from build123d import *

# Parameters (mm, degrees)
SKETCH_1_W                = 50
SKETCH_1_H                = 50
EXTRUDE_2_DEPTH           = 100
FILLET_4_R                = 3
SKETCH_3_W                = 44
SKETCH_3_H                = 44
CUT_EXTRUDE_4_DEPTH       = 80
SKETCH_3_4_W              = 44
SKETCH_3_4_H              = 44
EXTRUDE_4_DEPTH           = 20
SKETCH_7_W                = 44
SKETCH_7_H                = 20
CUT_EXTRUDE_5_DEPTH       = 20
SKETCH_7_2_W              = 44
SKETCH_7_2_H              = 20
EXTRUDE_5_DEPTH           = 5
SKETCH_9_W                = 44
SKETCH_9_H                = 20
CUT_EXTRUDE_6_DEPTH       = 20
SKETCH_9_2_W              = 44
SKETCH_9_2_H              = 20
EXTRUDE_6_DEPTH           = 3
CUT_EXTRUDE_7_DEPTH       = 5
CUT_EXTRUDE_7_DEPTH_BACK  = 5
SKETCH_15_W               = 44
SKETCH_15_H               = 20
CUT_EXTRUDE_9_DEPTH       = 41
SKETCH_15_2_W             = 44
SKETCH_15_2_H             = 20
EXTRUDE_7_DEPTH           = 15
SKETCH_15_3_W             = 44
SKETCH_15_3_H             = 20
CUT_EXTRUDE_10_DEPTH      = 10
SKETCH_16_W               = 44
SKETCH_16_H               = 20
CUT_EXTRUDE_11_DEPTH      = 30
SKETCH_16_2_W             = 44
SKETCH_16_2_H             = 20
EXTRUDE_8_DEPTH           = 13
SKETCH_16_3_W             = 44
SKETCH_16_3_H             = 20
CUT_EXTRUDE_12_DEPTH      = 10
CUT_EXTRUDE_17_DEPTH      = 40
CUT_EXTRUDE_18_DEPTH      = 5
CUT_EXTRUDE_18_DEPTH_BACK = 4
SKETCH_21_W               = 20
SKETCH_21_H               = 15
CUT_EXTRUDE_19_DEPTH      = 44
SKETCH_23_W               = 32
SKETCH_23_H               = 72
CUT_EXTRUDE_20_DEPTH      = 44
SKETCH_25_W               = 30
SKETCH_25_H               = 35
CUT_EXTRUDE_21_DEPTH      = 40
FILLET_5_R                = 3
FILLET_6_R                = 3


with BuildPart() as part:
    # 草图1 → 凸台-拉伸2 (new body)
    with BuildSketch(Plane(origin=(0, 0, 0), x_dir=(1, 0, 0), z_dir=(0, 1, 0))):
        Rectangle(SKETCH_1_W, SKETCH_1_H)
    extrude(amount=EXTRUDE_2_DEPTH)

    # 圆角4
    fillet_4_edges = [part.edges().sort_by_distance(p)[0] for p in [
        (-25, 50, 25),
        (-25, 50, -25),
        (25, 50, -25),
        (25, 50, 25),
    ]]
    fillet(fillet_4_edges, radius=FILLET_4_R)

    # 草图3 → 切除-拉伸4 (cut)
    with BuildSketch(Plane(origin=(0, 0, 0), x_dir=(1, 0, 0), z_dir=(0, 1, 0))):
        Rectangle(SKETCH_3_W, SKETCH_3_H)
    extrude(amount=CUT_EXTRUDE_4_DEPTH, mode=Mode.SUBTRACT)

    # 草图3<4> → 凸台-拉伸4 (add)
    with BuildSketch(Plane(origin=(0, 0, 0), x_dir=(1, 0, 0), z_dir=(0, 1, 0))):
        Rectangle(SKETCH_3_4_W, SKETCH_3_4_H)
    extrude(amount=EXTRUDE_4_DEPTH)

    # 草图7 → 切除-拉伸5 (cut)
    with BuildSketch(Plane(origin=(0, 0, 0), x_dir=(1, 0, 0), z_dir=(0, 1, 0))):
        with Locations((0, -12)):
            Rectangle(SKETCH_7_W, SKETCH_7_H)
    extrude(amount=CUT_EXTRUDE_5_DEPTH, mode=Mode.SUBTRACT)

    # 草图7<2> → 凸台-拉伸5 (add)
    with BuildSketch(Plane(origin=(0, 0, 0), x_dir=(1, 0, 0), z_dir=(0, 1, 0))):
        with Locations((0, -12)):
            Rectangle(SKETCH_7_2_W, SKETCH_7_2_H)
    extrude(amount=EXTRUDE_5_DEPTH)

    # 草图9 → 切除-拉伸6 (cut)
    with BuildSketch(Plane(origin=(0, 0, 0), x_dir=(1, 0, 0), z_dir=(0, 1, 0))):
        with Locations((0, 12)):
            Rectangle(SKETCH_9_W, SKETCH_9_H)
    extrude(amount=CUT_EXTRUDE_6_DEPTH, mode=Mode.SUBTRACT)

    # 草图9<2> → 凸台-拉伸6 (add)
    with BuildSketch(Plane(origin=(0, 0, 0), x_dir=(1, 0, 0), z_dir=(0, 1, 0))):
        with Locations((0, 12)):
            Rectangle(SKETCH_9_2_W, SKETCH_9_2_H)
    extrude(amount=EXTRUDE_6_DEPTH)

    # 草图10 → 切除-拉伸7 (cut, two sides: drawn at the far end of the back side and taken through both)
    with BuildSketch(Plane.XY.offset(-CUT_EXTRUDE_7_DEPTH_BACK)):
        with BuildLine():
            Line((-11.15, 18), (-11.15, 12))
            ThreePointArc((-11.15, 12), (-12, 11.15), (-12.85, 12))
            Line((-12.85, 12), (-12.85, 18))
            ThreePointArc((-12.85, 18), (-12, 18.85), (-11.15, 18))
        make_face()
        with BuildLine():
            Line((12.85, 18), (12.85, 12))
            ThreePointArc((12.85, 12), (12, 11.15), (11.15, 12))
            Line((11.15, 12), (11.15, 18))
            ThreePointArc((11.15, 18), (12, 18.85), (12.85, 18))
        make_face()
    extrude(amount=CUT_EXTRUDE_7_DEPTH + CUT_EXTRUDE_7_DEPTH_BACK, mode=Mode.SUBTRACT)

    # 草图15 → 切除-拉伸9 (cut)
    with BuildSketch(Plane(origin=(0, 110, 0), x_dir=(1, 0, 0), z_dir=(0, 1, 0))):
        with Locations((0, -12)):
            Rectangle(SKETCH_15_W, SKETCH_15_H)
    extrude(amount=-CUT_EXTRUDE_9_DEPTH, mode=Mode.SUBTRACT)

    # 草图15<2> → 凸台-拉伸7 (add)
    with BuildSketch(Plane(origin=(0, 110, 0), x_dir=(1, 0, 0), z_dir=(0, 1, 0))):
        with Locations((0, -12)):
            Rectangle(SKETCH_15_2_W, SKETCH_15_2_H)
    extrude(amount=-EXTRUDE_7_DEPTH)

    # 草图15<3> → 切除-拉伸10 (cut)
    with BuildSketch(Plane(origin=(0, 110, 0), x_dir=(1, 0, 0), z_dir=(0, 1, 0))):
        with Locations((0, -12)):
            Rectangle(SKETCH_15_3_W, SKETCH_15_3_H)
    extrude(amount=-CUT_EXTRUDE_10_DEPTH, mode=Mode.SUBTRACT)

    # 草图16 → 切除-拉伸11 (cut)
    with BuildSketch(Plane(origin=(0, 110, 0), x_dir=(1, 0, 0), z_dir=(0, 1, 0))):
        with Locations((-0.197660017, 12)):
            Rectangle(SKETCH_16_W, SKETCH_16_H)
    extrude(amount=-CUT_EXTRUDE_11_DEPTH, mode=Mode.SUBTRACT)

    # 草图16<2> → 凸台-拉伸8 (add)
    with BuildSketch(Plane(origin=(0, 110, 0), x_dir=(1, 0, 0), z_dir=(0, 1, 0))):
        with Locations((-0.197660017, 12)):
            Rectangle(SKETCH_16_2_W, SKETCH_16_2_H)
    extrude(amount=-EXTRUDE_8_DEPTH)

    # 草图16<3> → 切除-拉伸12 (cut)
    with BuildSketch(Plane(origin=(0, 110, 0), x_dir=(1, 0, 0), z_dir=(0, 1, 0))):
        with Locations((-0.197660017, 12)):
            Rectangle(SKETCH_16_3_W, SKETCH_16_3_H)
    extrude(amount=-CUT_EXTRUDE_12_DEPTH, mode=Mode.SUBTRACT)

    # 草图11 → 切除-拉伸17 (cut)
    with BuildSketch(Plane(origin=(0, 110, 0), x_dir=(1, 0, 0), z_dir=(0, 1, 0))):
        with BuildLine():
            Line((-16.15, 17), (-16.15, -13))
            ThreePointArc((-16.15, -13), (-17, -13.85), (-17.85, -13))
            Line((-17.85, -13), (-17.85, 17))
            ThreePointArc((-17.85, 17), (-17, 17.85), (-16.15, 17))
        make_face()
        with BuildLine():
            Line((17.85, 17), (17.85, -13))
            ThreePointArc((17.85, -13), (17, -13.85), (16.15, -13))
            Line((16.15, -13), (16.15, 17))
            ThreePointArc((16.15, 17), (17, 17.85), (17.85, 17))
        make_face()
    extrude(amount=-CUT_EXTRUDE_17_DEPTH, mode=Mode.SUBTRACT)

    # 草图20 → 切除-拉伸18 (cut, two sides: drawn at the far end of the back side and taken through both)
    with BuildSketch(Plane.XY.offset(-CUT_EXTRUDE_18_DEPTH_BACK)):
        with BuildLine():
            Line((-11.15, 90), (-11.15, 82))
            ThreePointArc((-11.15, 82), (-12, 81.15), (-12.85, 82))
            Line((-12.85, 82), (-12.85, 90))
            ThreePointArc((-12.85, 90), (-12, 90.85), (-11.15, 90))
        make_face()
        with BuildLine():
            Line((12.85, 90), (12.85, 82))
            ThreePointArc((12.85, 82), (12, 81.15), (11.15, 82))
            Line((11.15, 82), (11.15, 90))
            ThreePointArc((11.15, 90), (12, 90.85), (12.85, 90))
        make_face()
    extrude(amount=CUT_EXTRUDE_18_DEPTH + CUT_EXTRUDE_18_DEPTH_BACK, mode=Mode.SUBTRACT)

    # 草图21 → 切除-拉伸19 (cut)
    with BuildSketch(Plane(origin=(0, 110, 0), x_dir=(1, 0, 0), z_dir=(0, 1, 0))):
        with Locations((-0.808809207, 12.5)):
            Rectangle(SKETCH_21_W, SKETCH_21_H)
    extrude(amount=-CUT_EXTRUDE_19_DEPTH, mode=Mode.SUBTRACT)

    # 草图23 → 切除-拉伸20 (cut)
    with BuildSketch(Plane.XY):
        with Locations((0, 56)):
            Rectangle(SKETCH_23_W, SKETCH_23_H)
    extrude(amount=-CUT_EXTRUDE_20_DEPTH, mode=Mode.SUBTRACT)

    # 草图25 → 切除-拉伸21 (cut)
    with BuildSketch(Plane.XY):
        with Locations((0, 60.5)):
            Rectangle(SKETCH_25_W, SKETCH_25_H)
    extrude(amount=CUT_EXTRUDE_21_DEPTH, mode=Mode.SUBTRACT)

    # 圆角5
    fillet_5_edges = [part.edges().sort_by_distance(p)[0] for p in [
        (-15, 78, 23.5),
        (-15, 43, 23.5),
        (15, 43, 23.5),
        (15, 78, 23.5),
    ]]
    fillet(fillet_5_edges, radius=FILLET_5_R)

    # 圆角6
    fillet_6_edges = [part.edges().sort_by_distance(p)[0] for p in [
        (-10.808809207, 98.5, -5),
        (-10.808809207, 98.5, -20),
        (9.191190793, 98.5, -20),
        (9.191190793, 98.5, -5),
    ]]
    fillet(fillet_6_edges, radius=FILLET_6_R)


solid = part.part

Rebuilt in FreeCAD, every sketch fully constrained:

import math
import FreeCAD as App
import Part
import Sketcher
Q = App.Units.Quantity


def edges_at(feature, points):
    """Names of the edges that pass closest to the given points."""
    edges = feature.Shape.Edges
    near = lambda p: min(range(len(edges)), key=lambda i: edges[i].distToShape(Part.Vertex(*p))[0])
    return sorted({f"Edge{near(p) + 1}" for p in points})

doc = App.newDocument("Part")
body = doc.addObject("PartDesign::Body", "Body")

# Sketch on XZ plane
sketch1 = doc.addObject("Sketcher::SketchObject", "Sketch")
body.addObject(sketch1)
sketch1.AttachmentSupport = (doc.XZ_Plane, [""])
sketch1.MapMode = "FlatFace"
sketch1.addGeometry([
    Part.LineSegment(App.Vector(-25, -25, 0), App.Vector(-25, 25, 0)),
    Part.LineSegment(App.Vector(-25, 25, 0), App.Vector(25, 25, 0)),
    Part.LineSegment(App.Vector(25, 25, 0), App.Vector(25, -25, 0)),
    Part.LineSegment(App.Vector(25, -25, 0), App.Vector(-25, -25, 0)),
], False)
sketch1.addConstraint([
    Sketcher.Constraint("Coincident", 0, 2, 1, 1),
    Sketcher.Constraint("Coincident", 1, 2, 2, 1),
    Sketcher.Constraint("Coincident", 2, 2, 3, 1),
    Sketcher.Constraint("Coincident", 3, 2, 0, 1),
    Sketcher.Constraint("Vertical", 0),
    Sketcher.Constraint("Horizontal", 1),
    Sketcher.Constraint("Vertical", 2),
    Sketcher.Constraint("Horizontal", 3),
    Sketcher.Constraint("Symmetric", 0, 2, 2, 2, -1, 1),
    Sketcher.Constraint("Equal", 3, 0),
    Sketcher.Constraint("DistanceX", 1, 1, 1, 2, Q("50 mm")),
])
pad1 = doc.addObject("PartDesign::Pad", "Pad")
body.addObject(pad1)
pad1.Profile = sketch1
pad1.Length = 100
pad1.Reversed = True
doc.recompute()

fillet = doc.addObject("PartDesign::Fillet", "Fillet")
body.addObject(fillet)
fillet.Base = (pad1, edges_at(pad1, [
    (-25, 50, 25),
    (-25, 50, -25),
    (25, 50, -25),
    (25, 50, 25),
]))
fillet.Radius = 3

# Sketch on XZ plane
sketch2 = doc.addObject("Sketcher::SketchObject", "Sketch001")
body.addObject(sketch2)
sketch2.AttachmentSupport = (doc.XZ_Plane, [""])
sketch2.MapMode = "FlatFace"
sketch2.addGeometry([
    Part.LineSegment(App.Vector(-22, -22, 0), App.Vector(-22, 22, 0)),
    Part.LineSegment(App.Vector(-22, 22, 0), App.Vector(22, 22, 0)),
    Part.LineSegment(App.Vector(22, 22, 0), App.Vector(22, -22, 0)),
    Part.LineSegment(App.Vector(22, -22, 0), App.Vector(-22, -22, 0)),
], False)
sketch2.addConstraint([
    Sketcher.Constraint("Coincident", 0, 2, 1, 1),
    Sketcher.Constraint("Coincident", 1, 2, 2, 1),
    Sketcher.Constraint("Coincident", 2, 2, 3, 1),
    Sketcher.Constraint("Coincident", 3, 2, 0, 1),
    Sketcher.Constraint("Vertical", 0),
    Sketcher.Constraint("Horizontal", 1),
    Sketcher.Constraint("Vertical", 2),
    Sketcher.Constraint("Horizontal", 3),
    Sketcher.Constraint("Symmetric", 0, 2, 2, 2, -1, 1),
    Sketcher.Constraint("Equal", 3, 0),
    Sketcher.Constraint("DistanceX", 1, 1, 1, 2, Q("44 mm")),
])
pocket1 = doc.addObject("PartDesign::Pocket", "Pocket")
body.addObject(pocket1)
pocket1.Profile = sketch2
pocket1.Length = 80

# Sketch on XZ plane
sketch3 = doc.addObject("Sketcher::SketchObject", "Sketch002")
body.addObject(sketch3)
sketch3.AttachmentSupport = (doc.XZ_Plane, [""])
sketch3.MapMode = "FlatFace"
sketch3.addGeometry([
    Part.LineSegment(App.Vector(-22, -22, 0), App.Vector(-22, 22, 0)),
    Part.LineSegment(App.Vector(-22, 22, 0), App.Vector(22, 22, 0)),
    Part.LineSegment(App.Vector(22, 22, 0), App.Vector(22, -22, 0)),
    Part.LineSegment(App.Vector(22, -22, 0), App.Vector(-22, -22, 0)),
], False)
sketch3.addConstraint([
    Sketcher.Constraint("Coincident", 0, 2, 1, 1),
    Sketcher.Constraint("Coincident", 1, 2, 2, 1),
    Sketcher.Constraint("Coincident", 2, 2, 3, 1),
    Sketcher.Constraint("Coincident", 3, 2, 0, 1),
    Sketcher.Constraint("Vertical", 0),
    Sketcher.Constraint("Horizontal", 1),
    Sketcher.Constraint("Vertical", 2),
    Sketcher.Constraint("Horizontal", 3),
    Sketcher.Constraint("Symmetric", 0, 2, 2, 2, -1, 1),
    Sketcher.Constraint("Equal", 3, 0),
    Sketcher.Constraint("DistanceX", 1, 1, 1, 2, Q("44 mm")),
])
pad2 = doc.addObject("PartDesign::Pad", "Pad001")
body.addObject(pad2)
pad2.Profile = sketch3
pad2.Length = 20
pad2.Reversed = True

# Sketch on XZ plane
sketch4 = doc.addObject("Sketcher::SketchObject", "Sketch003")
body.addObject(sketch4)
sketch4.AttachmentSupport = (doc.XZ_Plane, [""])
sketch4.MapMode = "FlatFace"
sketch4.addGeometry([
    Part.LineSegment(App.Vector(-22, 2, 0), App.Vector(-22, 22, 0)),
    Part.LineSegment(App.Vector(-22, 22, 0), App.Vector(22, 22, 0)),
    Part.LineSegment(App.Vector(22, 22, 0), App.Vector(22, 2, 0)),
    Part.LineSegment(App.Vector(22, 2, 0), App.Vector(-22, 2, 0)),
], False)
sketch4.addConstraint([
    Sketcher.Constraint("Coincident", 0, 2, 1, 1),
    Sketcher.Constraint("Coincident", 1, 2, 2, 1),
    Sketcher.Constraint("Coincident", 2, 2, 3, 1),
    Sketcher.Constraint("Coincident", 3, 2, 0, 1),
    Sketcher.Constraint("Vertical", 0),
    Sketcher.Constraint("Horizontal", 1),
    Sketcher.Constraint("Vertical", 2),
    Sketcher.Constraint("Horizontal", 3),
    Sketcher.Constraint("DistanceX", 1, 1, 1, 2, Q("44 mm")),
    Sketcher.Constraint("DistanceY", 0, 1, 0, 2, Q("20 mm")),
    Sketcher.Constraint("DistanceX", 0, 2, -1, 1, Q("22 mm")),
    Sketcher.Constraint("DistanceY", -1, 1, 0, 2, Q("22 mm")),
])
pocket2 = doc.addObject("PartDesign::Pocket", "Pocket001")
body.addObject(pocket2)
pocket2.Profile = sketch4
pocket2.Length = 20

# Sketch on XZ plane
sketch5 = doc.addObject("Sketcher::SketchObject", "Sketch004")
body.addObject(sketch5)
sketch5.AttachmentSupport = (doc.XZ_Plane, [""])
sketch5.MapMode = "FlatFace"
sketch5.addGeometry([
    Part.LineSegment(App.Vector(-22, 2, 0), App.Vector(-22, 22, 0)),
    Part.LineSegment(App.Vector(-22, 22, 0), App.Vector(22, 22, 0)),
    Part.LineSegment(App.Vector(22, 22, 0), App.Vector(22, 2, 0)),
    Part.LineSegment(App.Vector(22, 2, 0), App.Vector(-22, 2, 0)),
], False)
sketch5.addConstraint([
    Sketcher.Constraint("Coincident", 0, 2, 1, 1),
    Sketcher.Constraint("Coincident", 1, 2, 2, 1),
    Sketcher.Constraint("Coincident", 2, 2, 3, 1),
    Sketcher.Constraint("Coincident", 3, 2, 0, 1),
    Sketcher.Constraint("Vertical", 0),
    Sketcher.Constraint("Horizontal", 1),
    Sketcher.Constraint("Vertical", 2),
    Sketcher.Constraint("Horizontal", 3),
    Sketcher.Constraint("DistanceX", 1, 1, 1, 2, Q("44 mm")),
    Sketcher.Constraint("DistanceY", 0, 1, 0, 2, Q("20 mm")),
    Sketcher.Constraint("DistanceX", 0, 2, -1, 1, Q("22 mm")),
    Sketcher.Constraint("DistanceY", -1, 1, 0, 2, Q("22 mm")),
])
pad3 = doc.addObject("PartDesign::Pad", "Pad002")
body.addObject(pad3)
pad3.Profile = sketch5
pad3.Length = 5
pad3.Reversed = True

# Sketch on XZ plane
sketch6 = doc.addObject("Sketcher::SketchObject", "Sketch005")
body.addObject(sketch6)
sketch6.AttachmentSupport = (doc.XZ_Plane, [""])
sketch6.MapMode = "FlatFace"
sketch6.addGeometry([
    Part.LineSegment(App.Vector(-22, -22, 0), App.Vector(-22, -2, 0)),
    Part.LineSegment(App.Vector(-22, -2, 0), App.Vector(22, -2, 0)),
    Part.LineSegment(App.Vector(22, -2, 0), App.Vector(22, -22, 0)),
    Part.LineSegment(App.Vector(22, -22, 0), App.Vector(-22, -22, 0)),
], False)
sketch6.addConstraint([
    Sketcher.Constraint("Coincident", 0, 2, 1, 1),
    Sketcher.Constraint("Coincident", 1, 2, 2, 1),
    Sketcher.Constraint("Coincident", 2, 2, 3, 1),
    Sketcher.Constraint("Coincident", 3, 2, 0, 1),
    Sketcher.Constraint("Vertical", 0),
    Sketcher.Constraint("Horizontal", 1),
    Sketcher.Constraint("Vertical", 2),
    Sketcher.Constraint("Horizontal", 3),
    Sketcher.Constraint("DistanceX", 1, 1, 1, 2, Q("44 mm")),
    Sketcher.Constraint("DistanceY", 0, 1, 0, 2, Q("20 mm")),
    Sketcher.Constraint("DistanceX", 0, 2, -1, 1, Q("22 mm")),
    Sketcher.Constraint("DistanceY", 0, 2, -1, 1, Q("2 mm")),
])
pocket3 = doc.addObject("PartDesign::Pocket", "Pocket002")
body.addObject(pocket3)
pocket3.Profile = sketch6
pocket3.Length = 20

# Sketch on XZ plane
sketch7 = doc.addObject("Sketcher::SketchObject", "Sketch006")
body.addObject(sketch7)
sketch7.AttachmentSupport = (doc.XZ_Plane, [""])
sketch7.MapMode = "FlatFace"
sketch7.addGeometry([
    Part.LineSegment(App.Vector(-22, -22, 0), App.Vector(-22, -2, 0)),
    Part.LineSegment(App.Vector(-22, -2, 0), App.Vector(22, -2, 0)),
    Part.LineSegment(App.Vector(22, -2, 0), App.Vector(22, -22, 0)),
    Part.LineSegment(App.Vector(22, -22, 0), App.Vector(-22, -22, 0)),
], False)
sketch7.addConstraint([
    Sketcher.Constraint("Coincident", 0, 2, 1, 1),
    Sketcher.Constraint("Coincident", 1, 2, 2, 1),
    Sketcher.Constraint("Coincident", 2, 2, 3, 1),
    Sketcher.Constraint("Coincident", 3, 2, 0, 1),
    Sketcher.Constraint("Vertical", 0),
    Sketcher.Constraint("Horizontal", 1),
    Sketcher.Constraint("Vertical", 2),
    Sketcher.Constraint("Horizontal", 3),
    Sketcher.Constraint("DistanceX", 1, 1, 1, 2, Q("44 mm")),
    Sketcher.Constraint("DistanceY", 0, 1, 0, 2, Q("20 mm")),
    Sketcher.Constraint("DistanceX", 0, 2, -1, 1, Q("22 mm")),
    Sketcher.Constraint("DistanceY", 0, 2, -1, 1, Q("2 mm")),
])
pad4 = doc.addObject("PartDesign::Pad", "Pad003")
body.addObject(pad4)
pad4.Profile = sketch7
pad4.Length = 3
pad4.Reversed = True

# Sketch on XY plane
sketch8 = doc.addObject("Sketcher::SketchObject", "Sketch007")
body.addObject(sketch8)
sketch8.AttachmentSupport = (doc.XY_Plane, [""])
sketch8.MapMode = "FlatFace"
sketch8.addGeometry([
    Part.LineSegment(App.Vector(-11.2, 12, 0), App.Vector(-11.2, 18, 0)),  # 0
    Part.ArcOfCircle(Part.Circle(App.Vector(-12, 18, 0), App.Vector(0, 0, 1), 0.8), math.radians(0), math.radians(180)),  # 1
    Part.LineSegment(App.Vector(-12.8, 18, 0), App.Vector(-12.8, 12, 0)),  # 2
    Part.ArcOfCircle(Part.Circle(App.Vector(-12, 12, 0), App.Vector(0, 0, 1), 0.8), math.radians(180), math.radians(360)),  # 3
    Part.LineSegment(App.Vector(12.8, 12, 0), App.Vector(12.8, 18, 0)),  # 4
    Part.ArcOfCircle(Part.Circle(App.Vector(12, 18, 0), App.Vector(0, 0, 1), 0.8), math.radians(0), math.radians(180)),  # 5
    Part.LineSegment(App.Vector(11.2, 18, 0), App.Vector(11.2, 12, 0)),  # 6
    Part.ArcOfCircle(Part.Circle(App.Vector(12, 12, 0), App.Vector(0, 0, 1), 0.8), math.radians(180), math.radians(360)),  # 7
], False)
sketch8.addConstraint([
    Sketcher.Constraint("Tangent", 0, 2, 1, 1),
    Sketcher.Constraint("Tangent", 1, 2, 2, 1),
    Sketcher.Constraint("Tangent", 2, 2, 3, 1),
    Sketcher.Constraint("Tangent", 3, 2, 0, 1),
    Sketcher.Constraint("Tangent", 4, 2, 5, 1),
    Sketcher.Constraint("Tangent", 5, 2, 6, 1),
    Sketcher.Constraint("Tangent", 6, 2, 7, 1),
    Sketcher.Constraint("Tangent", 7, 2, 4, 1),
    Sketcher.Constraint("Vertical", 0),
    Sketcher.Constraint("Vertical", 2),
    Sketcher.Constraint("Vertical", 4),
    Sketcher.Constraint("Vertical", 6),
    Sketcher.Constraint("Equal", 3, 5),
    Sketcher.Constraint("Symmetric", 1, 3, 5, 3, -2),
    Sketcher.Constraint("Horizontal", 3, 3, 7, 3),
    Sketcher.Constraint("DistanceY", 0, 1, 0, 2, Q("6 mm")),
    Sketcher.Constraint("Radius", 1, Q("0.85 mm")),
    Sketcher.Constraint("DistanceX", 1, 3, -1, 1, Q("12 mm")),
    Sketcher.Constraint("DistanceY", -1, 1, 1, 3, Q("18 mm")),
])
pocket4 = doc.addObject("PartDesign::Pocket", "Pocket003")
body.addObject(pocket4)
pocket4.Profile = sketch8
pocket4.Type = "TwoLengths"
pocket4.Length = 5
pocket4.Length2 = 5
pocket4.Reversed = True

# Sketch on XZ plane
sketch9 = doc.addObject("Sketcher::SketchObject", "Sketch008")
body.addObject(sketch9)
sketch9.AttachmentSupport = (doc.XZ_Plane, [""])
sketch9.MapMode = "FlatFace"
sketch9.AttachmentOffset = App.Placement(App.Vector(0, 0, -110), App.Rotation())
sketch9.addGeometry([
    Part.LineSegment(App.Vector(-22, 2, 0), App.Vector(-22, 22, 0)),
    Part.LineSegment(App.Vector(-22, 22, 0), App.Vector(22, 22, 0)),
    Part.LineSegment(App.Vector(22, 22, 0), App.Vector(22, 2, 0)),
    Part.LineSegment(App.Vector(22, 2, 0), App.Vector(-22, 2, 0)),
], False)
sketch9.addConstraint([
    Sketcher.Constraint("Coincident", 0, 2, 1, 1),
    Sketcher.Constraint("Coincident", 1, 2, 2, 1),
    Sketcher.Constraint("Coincident", 2, 2, 3, 1),
    Sketcher.Constraint("Coincident", 3, 2, 0, 1),
    Sketcher.Constraint("Vertical", 0),
    Sketcher.Constraint("Horizontal", 1),
    Sketcher.Constraint("Vertical", 2),
    Sketcher.Constraint("Horizontal", 3),
    Sketcher.Constraint("DistanceX", 1, 1, 1, 2, Q("44 mm")),
    Sketcher.Constraint("DistanceY", 0, 1, 0, 2, Q("20 mm")),
    Sketcher.Constraint("DistanceX", 0, 2, -1, 1, Q("22 mm")),
    Sketcher.Constraint("DistanceY", -1, 1, 0, 2, Q("22 mm")),
])
pocket5 = doc.addObject("PartDesign::Pocket", "Pocket004")
body.addObject(pocket5)
pocket5.Profile = sketch9
pocket5.Length = 41
pocket5.Reversed = True

# Sketch on XZ plane
sketch10 = doc.addObject("Sketcher::SketchObject", "Sketch009")
body.addObject(sketch10)
sketch10.AttachmentSupport = (doc.XZ_Plane, [""])
sketch10.MapMode = "FlatFace"
sketch10.AttachmentOffset = App.Placement(App.Vector(0, 0, -110), App.Rotation())
sketch10.addGeometry([
    Part.LineSegment(App.Vector(-22, 2, 0), App.Vector(-22, 22, 0)),
    Part.LineSegment(App.Vector(-22, 22, 0), App.Vector(22, 22, 0)),
    Part.LineSegment(App.Vector(22, 22, 0), App.Vector(22, 2, 0)),
    Part.LineSegment(App.Vector(22, 2, 0), App.Vector(-22, 2, 0)),
], False)
sketch10.addConstraint([
    Sketcher.Constraint("Coincident", 0, 2, 1, 1),
    Sketcher.Constraint("Coincident", 1, 2, 2, 1),
    Sketcher.Constraint("Coincident", 2, 2, 3, 1),
    Sketcher.Constraint("Coincident", 3, 2, 0, 1),
    Sketcher.Constraint("Vertical", 0),
    Sketcher.Constraint("Horizontal", 1),
    Sketcher.Constraint("Vertical", 2),
    Sketcher.Constraint("Horizontal", 3),
    Sketcher.Constraint("DistanceX", 1, 1, 1, 2, Q("44 mm")),
    Sketcher.Constraint("DistanceY", 0, 1, 0, 2, Q("20 mm")),
    Sketcher.Constraint("DistanceX", 0, 2, -1, 1, Q("22 mm")),
    Sketcher.Constraint("DistanceY", -1, 1, 0, 2, Q("22 mm")),
])
pad5 = doc.addObject("PartDesign::Pad", "Pad004")
body.addObject(pad5)
pad5.Profile = sketch10
pad5.Length = 15

# Sketch on XZ plane
sketch11 = doc.addObject("Sketcher::SketchObject", "Sketch010")
body.addObject(sketch11)
sketch11.AttachmentSupport = (doc.XZ_Plane, [""])
sketch11.MapMode = "FlatFace"
sketch11.AttachmentOffset = App.Placement(App.Vector(0, 0, -110), App.Rotation())
sketch11.addGeometry([
    Part.LineSegment(App.Vector(-22, 2, 0), App.Vector(-22, 22, 0)),
    Part.LineSegment(App.Vector(-22, 22, 0), App.Vector(22, 22, 0)),
    Part.LineSegment(App.Vector(22, 22, 0), App.Vector(22, 2, 0)),
    Part.LineSegment(App.Vector(22, 2, 0), App.Vector(-22, 2, 0)),
], False)
sketch11.addConstraint([
    Sketcher.Constraint("Coincident", 0, 2, 1, 1),
    Sketcher.Constraint("Coincident", 1, 2, 2, 1),
    Sketcher.Constraint("Coincident", 2, 2, 3, 1),
    Sketcher.Constraint("Coincident", 3, 2, 0, 1),
    Sketcher.Constraint("Vertical", 0),
    Sketcher.Constraint("Horizontal", 1),
    Sketcher.Constraint("Vertical", 2),
    Sketcher.Constraint("Horizontal", 3),
    Sketcher.Constraint("DistanceX", 1, 1, 1, 2, Q("44 mm")),
    Sketcher.Constraint("DistanceY", 0, 1, 0, 2, Q("20 mm")),
    Sketcher.Constraint("DistanceX", 0, 2, -1, 1, Q("22 mm")),
    Sketcher.Constraint("DistanceY", -1, 1, 0, 2, Q("22 mm")),
])
pocket6 = doc.addObject("PartDesign::Pocket", "Pocket005")
body.addObject(pocket6)
pocket6.Profile = sketch11
pocket6.Length = 10
pocket6.Reversed = True

# Sketch on XZ plane
sketch12 = doc.addObject("Sketcher::SketchObject", "Sketch011")
body.addObject(sketch12)
sketch12.AttachmentSupport = (doc.XZ_Plane, [""])
sketch12.MapMode = "FlatFace"
sketch12.AttachmentOffset = App.Placement(App.Vector(0, 0, -110), App.Rotation())
sketch12.addGeometry([
    Part.LineSegment(App.Vector(-22, -22, 0), App.Vector(-22, -2, 0)),
    Part.LineSegment(App.Vector(-22, -2, 0), App.Vector(22, -2, 0)),
    Part.LineSegment(App.Vector(22, -2, 0), App.Vector(22, -22, 0)),
    Part.LineSegment(App.Vector(22, -22, 0), App.Vector(-22, -22, 0)),
], False)
sketch12.addConstraint([
    Sketcher.Constraint("Coincident", 0, 2, 1, 1),
    Sketcher.Constraint("Coincident", 1, 2, 2, 1),
    Sketcher.Constraint("Coincident", 2, 2, 3, 1),
    Sketcher.Constraint("Coincident", 3, 2, 0, 1),
    Sketcher.Constraint("Vertical", 0),
    Sketcher.Constraint("Horizontal", 1),
    Sketcher.Constraint("Vertical", 2),
    Sketcher.Constraint("Horizontal", 3),
    Sketcher.Constraint("DistanceX", 1, 1, 1, 2, Q("44 mm")),
    Sketcher.Constraint("DistanceY", 0, 1, 0, 2, Q("20 mm")),
    Sketcher.Constraint("DistanceY", 0, 2, -1, 1, Q("2 mm")),
    Sketcher.Constraint("DistanceX", 0, 2, -1, 1, Q("22.19766 mm")),
])
pocket7 = doc.addObject("PartDesign::Pocket", "Pocket006")
body.addObject(pocket7)
pocket7.Profile = sketch12
pocket7.Length = 30
pocket7.Reversed = True

# Sketch on XZ plane
sketch13 = doc.addObject("Sketcher::SketchObject", "Sketch012")
body.addObject(sketch13)
sketch13.AttachmentSupport = (doc.XZ_Plane, [""])
sketch13.MapMode = "FlatFace"
sketch13.AttachmentOffset = App.Placement(App.Vector(0, 0, -110), App.Rotation())
sketch13.addGeometry([
    Part.LineSegment(App.Vector(-22, -22, 0), App.Vector(-22, -2, 0)),
    Part.LineSegment(App.Vector(-22, -2, 0), App.Vector(22, -2, 0)),
    Part.LineSegment(App.Vector(22, -2, 0), App.Vector(22, -22, 0)),
    Part.LineSegment(App.Vector(22, -22, 0), App.Vector(-22, -22, 0)),
], False)
sketch13.addConstraint([
    Sketcher.Constraint("Coincident", 0, 2, 1, 1),
    Sketcher.Constraint("Coincident", 1, 2, 2, 1),
    Sketcher.Constraint("Coincident", 2, 2, 3, 1),
    Sketcher.Constraint("Coincident", 3, 2, 0, 1),
    Sketcher.Constraint("Vertical", 0),
    Sketcher.Constraint("Horizontal", 1),
    Sketcher.Constraint("Vertical", 2),
    Sketcher.Constraint("Horizontal", 3),
    Sketcher.Constraint("DistanceX", 1, 1, 1, 2, Q("44 mm")),
    Sketcher.Constraint("DistanceY", 0, 1, 0, 2, Q("20 mm")),
    Sketcher.Constraint("DistanceY", 0, 2, -1, 1, Q("2 mm")),
    Sketcher.Constraint("DistanceX", 0, 2, -1, 1, Q("22.19766 mm")),
])
pad6 = doc.addObject("PartDesign::Pad", "Pad005")
body.addObject(pad6)
pad6.Profile = sketch13
pad6.Length = 13

# Sketch on XZ plane
sketch14 = doc.addObject("Sketcher::SketchObject", "Sketch013")
body.addObject(sketch14)
sketch14.AttachmentSupport = (doc.XZ_Plane, [""])
sketch14.MapMode = "FlatFace"
sketch14.AttachmentOffset = App.Placement(App.Vector(0, 0, -110), App.Rotation())
sketch14.addGeometry([
    Part.LineSegment(App.Vector(-22, -22, 0), App.Vector(-22, -2, 0)),
    Part.LineSegment(App.Vector(-22, -2, 0), App.Vector(22, -2, 0)),
    Part.LineSegment(App.Vector(22, -2, 0), App.Vector(22, -22, 0)),
    Part.LineSegment(App.Vector(22, -22, 0), App.Vector(-22, -22, 0)),
], False)
sketch14.addConstraint([
    Sketcher.Constraint("Coincident", 0, 2, 1, 1),
    Sketcher.Constraint("Coincident", 1, 2, 2, 1),
    Sketcher.Constraint("Coincident", 2, 2, 3, 1),
    Sketcher.Constraint("Coincident", 3, 2, 0, 1),
    Sketcher.Constraint("Vertical", 0),
    Sketcher.Constraint("Horizontal", 1),
    Sketcher.Constraint("Vertical", 2),
    Sketcher.Constraint("Horizontal", 3),
    Sketcher.Constraint("DistanceX", 1, 1, 1, 2, Q("44 mm")),
    Sketcher.Constraint("DistanceY", 0, 1, 0, 2, Q("20 mm")),
    Sketcher.Constraint("DistanceY", 0, 2, -1, 1, Q("2 mm")),
    Sketcher.Constraint("DistanceX", 0, 2, -1, 1, Q("22.19766 mm")),
])
pocket8 = doc.addObject("PartDesign::Pocket", "Pocket007")
body.addObject(pocket8)
pocket8.Profile = sketch14
pocket8.Length = 10
pocket8.Reversed = True

# Sketch on XZ plane
sketch15 = doc.addObject("Sketcher::SketchObject", "Sketch014")
body.addObject(sketch15)
sketch15.AttachmentSupport = (doc.XZ_Plane, [""])
sketch15.MapMode = "FlatFace"
sketch15.AttachmentOffset = App.Placement(App.Vector(0, 0, -110), App.Rotation())
sketch15.addGeometry([
    Part.LineSegment(App.Vector(-16.1, 13, 0), App.Vector(-16.1, -17, 0)),  # 0
    Part.ArcOfCircle(Part.Circle(App.Vector(-17, -17, 0), App.Vector(0, 0, 1), 0.8), math.radians(180), math.radians(360)),  # 1
    Part.LineSegment(App.Vector(-17.9, -17, 0), App.Vector(-17.9, 13, 0)),  # 2
    Part.ArcOfCircle(Part.Circle(App.Vector(-17, 13, 0), App.Vector(0, 0, 1), 0.8), math.radians(0), math.radians(180)),  # 3
    Part.LineSegment(App.Vector(17.9, 13, 0), App.Vector(17.9, -17, 0)),  # 4
    Part.ArcOfCircle(Part.Circle(App.Vector(17, -17, 0), App.Vector(0, 0, 1), 0.8), math.radians(180), math.radians(360)),  # 5
    Part.LineSegment(App.Vector(16.1, -17, 0), App.Vector(16.1, 13, 0)),  # 6
    Part.ArcOfCircle(Part.Circle(App.Vector(17, 13, 0), App.Vector(0, 0, 1), 0.8), math.radians(0), math.radians(180)),  # 7
], False)
sketch15.addConstraint([
    Sketcher.Constraint("Tangent", 0, 2, 1, 2),
    Sketcher.Constraint("Tangent", 1, 1, 2, 1),
    Sketcher.Constraint("Tangent", 2, 2, 3, 2),
    Sketcher.Constraint("Tangent", 3, 1, 0, 1),
    Sketcher.Constraint("Tangent", 4, 2, 5, 2),
    Sketcher.Constraint("Tangent", 5, 1, 6, 1),
    Sketcher.Constraint("Tangent", 6, 2, 7, 2),
    Sketcher.Constraint("Tangent", 7, 1, 4, 1),
    Sketcher.Constraint("Vertical", 0),
    Sketcher.Constraint("Vertical", 2),
    Sketcher.Constraint("Vertical", 4),
    Sketcher.Constraint("Vertical", 6),
    Sketcher.Constraint("Equal", 3, 5),
    Sketcher.Constraint("Symmetric", 1, 3, 5, 3, -2),
    Sketcher.Constraint("Horizontal", 3, 3, 7, 3),
    Sketcher.Constraint("DistanceY", 0, 2, 0, 1, Q("30 mm")),
    Sketcher.Constraint("Radius", 1, Q("0.85 mm")),
    Sketcher.Constraint("DistanceX", 1, 3, -1, 1, Q("17 mm")),
    Sketcher.Constraint("DistanceY", 1, 3, -1, 1, Q("17 mm")),
])
pocket9 = doc.addObject("PartDesign::Pocket", "Pocket008")
body.addObject(pocket9)
pocket9.Profile = sketch15
pocket9.Length = 40
pocket9.Reversed = True

# Sketch on XY plane
sketch16 = doc.addObject("Sketcher::SketchObject", "Sketch015")
body.addObject(sketch16)
sketch16.AttachmentSupport = (doc.XY_Plane, [""])
sketch16.MapMode = "FlatFace"
sketch16.addGeometry([
    Part.LineSegment(App.Vector(-11.2, 82, 0), App.Vector(-11.2, 90, 0)),  # 0
    Part.ArcOfCircle(Part.Circle(App.Vector(-12, 90, 0), App.Vector(0, 0, 1), 0.8), math.radians(0), math.radians(180)),  # 1
    Part.LineSegment(App.Vector(-12.8, 90, 0), App.Vector(-12.8, 82, 0)),  # 2
    Part.ArcOfCircle(Part.Circle(App.Vector(-12, 82, 0), App.Vector(0, 0, 1), 0.8), math.radians(180), math.radians(360)),  # 3
    Part.LineSegment(App.Vector(12.8, 82, 0), App.Vector(12.8, 90, 0)),  # 4
    Part.ArcOfCircle(Part.Circle(App.Vector(12, 90, 0), App.Vector(0, 0, 1), 0.8), math.radians(0), math.radians(180)),  # 5
    Part.LineSegment(App.Vector(11.2, 90, 0), App.Vector(11.2, 82, 0)),  # 6
    Part.ArcOfCircle(Part.Circle(App.Vector(12, 82, 0), App.Vector(0, 0, 1), 0.8), math.radians(180), math.radians(360)),  # 7
], False)
sketch16.addConstraint([
    Sketcher.Constraint("Tangent", 0, 2, 1, 1),
    Sketcher.Constraint("Tangent", 1, 2, 2, 1),
    Sketcher.Constraint("Tangent", 2, 2, 3, 1),
    Sketcher.Constraint("Tangent", 3, 2, 0, 1),
    Sketcher.Constraint("Tangent", 4, 2, 5, 1),
    Sketcher.Constraint("Tangent", 5, 2, 6, 1),
    Sketcher.Constraint("Tangent", 6, 2, 7, 1),
    Sketcher.Constraint("Tangent", 7, 2, 4, 1),
    Sketcher.Constraint("Vertical", 0),
    Sketcher.Constraint("Vertical", 2),
    Sketcher.Constraint("Vertical", 4),
    Sketcher.Constraint("Vertical", 6),
    Sketcher.Constraint("Equal", 3, 5),
    Sketcher.Constraint("Symmetric", 1, 3, 5, 3, -2),
    Sketcher.Constraint("Horizontal", 3, 3, 7, 3),
    Sketcher.Constraint("DistanceY", 0, 1, 0, 2, Q("8 mm")),
    Sketcher.Constraint("Radius", 1, Q("0.85 mm")),
    Sketcher.Constraint("DistanceX", 1, 3, -1, 1, Q("12 mm")),
    Sketcher.Constraint("DistanceY", -1, 1, 1, 3, Q("90 mm")),
])
pocket10 = doc.addObject("PartDesign::Pocket", "Pocket009")
body.addObject(pocket10)
pocket10.Profile = sketch16
pocket10.Type = "TwoLengths"
pocket10.Length = 5
pocket10.Length2 = 4
pocket10.Reversed = True

# Sketch on XZ plane
sketch17 = doc.addObject("Sketcher::SketchObject", "Sketch016")
body.addObject(sketch17)
sketch17.AttachmentSupport = (doc.XZ_Plane, [""])
sketch17.MapMode = "FlatFace"
sketch17.AttachmentOffset = App.Placement(App.Vector(0, 0, -110), App.Rotation())
sketch17.addGeometry([
    Part.LineSegment(App.Vector(-11, -20, 0), App.Vector(-11, -5, 0)),
    Part.LineSegment(App.Vector(-11, -5, 0), App.Vector(9, -5, 0)),
    Part.LineSegment(App.Vector(9, -5, 0), App.Vector(9, -20, 0)),
    Part.LineSegment(App.Vector(9, -20, 0), App.Vector(-11, -20, 0)),
], False)
sketch17.addConstraint([
    Sketcher.Constraint("Coincident", 0, 2, 1, 1),
    Sketcher.Constraint("Coincident", 1, 2, 2, 1),
    Sketcher.Constraint("Coincident", 2, 2, 3, 1),
    Sketcher.Constraint("Coincident", 3, 2, 0, 1),
    Sketcher.Constraint("Vertical", 0),
    Sketcher.Constraint("Horizontal", 1),
    Sketcher.Constraint("Vertical", 2),
    Sketcher.Constraint("Horizontal", 3),
    Sketcher.Constraint("DistanceX", 1, 1, 1, 2, Q("20 mm")),
    Sketcher.Constraint("DistanceY", 0, 1, 0, 2, Q("15 mm")),
    Sketcher.Constraint("DistanceY", 0, 2, -1, 1, Q("5 mm")),
    Sketcher.Constraint("DistanceX", 0, 2, -1, 1, Q("10.808809 mm")),
])
pocket11 = doc.addObject("PartDesign::Pocket", "Pocket010")
body.addObject(pocket11)
pocket11.Profile = sketch17
pocket11.Length = 44
pocket11.Reversed = True

# Sketch on XY plane
sketch18 = doc.addObject("Sketcher::SketchObject", "Sketch017")
body.addObject(sketch18)
sketch18.AttachmentSupport = (doc.XY_Plane, [""])
sketch18.MapMode = "FlatFace"
sketch18.addGeometry([
    Part.LineSegment(App.Vector(-16, 92, 0), App.Vector(-16, 20, 0)),
    Part.LineSegment(App.Vector(-16, 20, 0), App.Vector(16, 20, 0)),
    Part.LineSegment(App.Vector(16, 20, 0), App.Vector(16, 92, 0)),
    Part.LineSegment(App.Vector(16, 92, 0), App.Vector(-16, 92, 0)),
], False)
sketch18.addConstraint([
    Sketcher.Constraint("Coincident", 0, 2, 1, 1),
    Sketcher.Constraint("Coincident", 1, 2, 2, 1),
    Sketcher.Constraint("Coincident", 2, 2, 3, 1),
    Sketcher.Constraint("Coincident", 3, 2, 0, 1),
    Sketcher.Constraint("Vertical", 0),
    Sketcher.Constraint("Horizontal", 1),
    Sketcher.Constraint("Vertical", 2),
    Sketcher.Constraint("Horizontal", 3),
    Sketcher.Constraint("DistanceX", 1, 1, 1, 2, Q("32 mm")),
    Sketcher.Constraint("DistanceY", 0, 2, 0, 1, Q("72 mm")),
    Sketcher.Constraint("DistanceX", 0, 2, -1, 1, Q("16 mm")),
    Sketcher.Constraint("DistanceY", -1, 1, 0, 2, Q("20 mm")),
])
pocket12 = doc.addObject("PartDesign::Pocket", "Pocket011")
body.addObject(pocket12)
pocket12.Profile = sketch18
pocket12.Length = 44

# Sketch on XY plane
sketch19 = doc.addObject("Sketcher::SketchObject", "Sketch018")
body.addObject(sketch19)
sketch19.AttachmentSupport = (doc.XY_Plane, [""])
sketch19.MapMode = "FlatFace"
sketch19.addGeometry([
    Part.LineSegment(App.Vector(-15, 78, 0), App.Vector(-15, 43, 0)),
    Part.LineSegment(App.Vector(-15, 43, 0), App.Vector(15, 43, 0)),
    Part.LineSegment(App.Vector(15, 43, 0), App.Vector(15, 78, 0)),
    Part.LineSegment(App.Vector(15, 78, 0), App.Vector(-15, 78, 0)),
], False)
sketch19.addConstraint([
    Sketcher.Constraint("Coincident", 0, 2, 1, 1),
    Sketcher.Constraint("Coincident", 1, 2, 2, 1),
    Sketcher.Constraint("Coincident", 2, 2, 3, 1),
    Sketcher.Constraint("Coincident", 3, 2, 0, 1),
    Sketcher.Constraint("Vertical", 0),
    Sketcher.Constraint("Horizontal", 1),
    Sketcher.Constraint("Vertical", 2),
    Sketcher.Constraint("Horizontal", 3),
    Sketcher.Constraint("DistanceX", 1, 1, 1, 2, Q("30 mm")),
    Sketcher.Constraint("DistanceY", 0, 2, 0, 1, Q("35 mm")),
    Sketcher.Constraint("DistanceX", 0, 2, -1, 1, Q("15 mm")),
    Sketcher.Constraint("DistanceY", -1, 1, 0, 2, Q("43 mm")),
])
pocket13 = doc.addObject("PartDesign::Pocket", "Pocket012")
body.addObject(pocket13)
pocket13.Profile = sketch19
pocket13.Length = 40
pocket13.Reversed = True
doc.recompute()

fillet2 = doc.addObject("PartDesign::Fillet", "Fillet001")
body.addObject(fillet2)
fillet2.Base = (pocket13, edges_at(pocket13, [
    (-15, 78, 23.5),
    (-15, 43, 23.5),
    (15, 43, 23.5),
    (15, 78, 23.5),
]))
fillet2.Radius = 3
doc.recompute()

fillet3 = doc.addObject("PartDesign::Fillet", "Fillet002")
body.addObject(fillet3)
fillet3.Base = (fillet2, edges_at(fillet2, [
    (-10.809, 98.5, -5),
    (-10.809, 98.5, -20),
    (9.191, 98.5, -20),
    (9.191, 98.5, -5),
]))
fillet3.Radius = 3

doc.recompute()
